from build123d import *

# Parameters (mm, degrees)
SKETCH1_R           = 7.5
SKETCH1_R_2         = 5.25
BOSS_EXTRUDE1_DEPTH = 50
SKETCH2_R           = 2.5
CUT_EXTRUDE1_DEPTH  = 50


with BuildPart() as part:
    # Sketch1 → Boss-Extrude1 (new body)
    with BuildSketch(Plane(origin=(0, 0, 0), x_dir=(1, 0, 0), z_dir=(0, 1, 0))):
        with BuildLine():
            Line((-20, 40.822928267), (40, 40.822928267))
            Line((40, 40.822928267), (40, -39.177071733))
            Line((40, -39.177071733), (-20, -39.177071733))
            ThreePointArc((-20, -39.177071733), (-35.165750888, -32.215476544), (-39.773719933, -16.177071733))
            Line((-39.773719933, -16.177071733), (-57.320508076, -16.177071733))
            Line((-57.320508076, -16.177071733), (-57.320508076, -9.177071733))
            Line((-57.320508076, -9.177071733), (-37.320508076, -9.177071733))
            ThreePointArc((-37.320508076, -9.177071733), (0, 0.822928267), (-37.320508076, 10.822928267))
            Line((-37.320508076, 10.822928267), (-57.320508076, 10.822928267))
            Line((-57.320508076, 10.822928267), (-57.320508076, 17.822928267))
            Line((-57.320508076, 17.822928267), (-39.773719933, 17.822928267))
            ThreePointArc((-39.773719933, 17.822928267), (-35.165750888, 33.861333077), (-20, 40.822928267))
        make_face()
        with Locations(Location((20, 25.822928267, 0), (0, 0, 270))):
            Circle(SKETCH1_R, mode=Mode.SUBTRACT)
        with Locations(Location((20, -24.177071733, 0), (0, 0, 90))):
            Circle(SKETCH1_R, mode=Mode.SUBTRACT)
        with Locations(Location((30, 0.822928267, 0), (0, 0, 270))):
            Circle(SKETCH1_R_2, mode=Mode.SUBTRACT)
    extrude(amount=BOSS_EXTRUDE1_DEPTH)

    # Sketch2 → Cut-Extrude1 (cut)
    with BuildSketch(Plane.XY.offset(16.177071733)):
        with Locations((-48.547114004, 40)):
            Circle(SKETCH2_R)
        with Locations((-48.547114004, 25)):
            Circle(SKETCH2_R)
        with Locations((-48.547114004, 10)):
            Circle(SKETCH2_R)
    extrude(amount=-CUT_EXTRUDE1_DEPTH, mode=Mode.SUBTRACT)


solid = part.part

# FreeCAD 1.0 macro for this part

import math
import FreeCAD as App
import Part
import Sketcher

V = App.Vector

doc = App.newDocument("Part")
params = doc.addObject("Spreadsheet::Sheet", "Params")
for row, (alias, value) in enumerate([
    ("sketch1_diameter", "15 mm"),
    ("sketch1_radius", "20 mm"),
    ("sketch1_diameter2", "10.5 mm"),
    ("sketch1_width", "60 mm"),
    ("sketch1_width2", "20 mm"),
    ("pad1_length", "50 mm"),
    ("sketch2_diameter", "5 mm"),
    ("pocket1_length", "50 mm"),
], start=1):
    params.set(f"A{row}", alias)
    params.set(f"B{row}", "=" + value)
    params.setAlias(f"B{row}", alias)

body = doc.addObject("PartDesign::Body", "Body")

# Sketch on XZ plane
sketch1 = doc.addObject("Sketcher::SketchObject", "Sketch")
body.addObject(sketch1)
sketch1.AttachmentSupport = (doc.XZ_Plane, [""])
sketch1.MapMode = "FlatFace"
sketch1.addGeometry(Part.LineSegment(V(40, -41, 0), V(-20, -41, 0)), False)
sketch1.addGeometry(Part.ArcOfCircle(Part.Circle(V(-20, -21, 0), V(0, 0, 1), 20), math.radians(171), math.radians(270)), False)
sketch1.addGeometry(Part.LineSegment(V(-40, -18, 0), V(-57, -18, 0)), False)
sketch1.addGeometry(Part.LineSegment(V(-57, -18, 0), V(-57, -11, 0)), False)
sketch1.addGeometry(Part.LineSegment(V(-57, -11, 0), V(-37, -11, 0)), False)
sketch1.addGeometry(Part.ArcOfCircle(Part.Circle(V(-20, -1, 0), V(0, 0, 1), 20), math.radians(-150), math.radians(150)), False)
sketch1.addGeometry(Part.LineSegment(V(-37, 9, 0), V(-57, 9, 0)), False)
sketch1.addGeometry(Part.LineSegment(V(-57, 9, 0), V(-57, 16, 0)), False)
sketch1.addGeometry(Part.LineSegment(V(-57, 16, 0), V(-40, 16, 0)), False)
sketch1.addGeometry(Part.ArcOfCircle(Part.Circle(V(-20, 19, 0), V(0, 0, 1), 20), math.radians(90), math.radians(189)), False)
sketch1.addGeometry(Part.LineSegment(V(-20, 39, 0), V(40, 39, 0)), False)
sketch1.addGeometry(Part.LineSegment(V(40, 39, 0), V(40, -41, 0)), False)
sketch1.addGeometry(Part.Circle(V(20, 24, 0), V(0, 0, 1), 8), False)
sketch1.addGeometry(Part.Circle(V(30, -1, 0), V(0, 0, 1), 5), False)
sketch1.addGeometry(Part.Circle(V(20, -26, 0), V(0, 0, 1), 8), False)
sketch1.addConstraint(Sketcher.Constraint("Tangent", 0, 2, 1, 2))
sketch1.addConstraint(Sketcher.Constraint("Coincident", 1, 1, 2, 1))
sketch1.addConstraint(Sketcher.Constraint("Coincident", 2, 2, 3, 1))
sketch1.addConstraint(Sketcher.Constraint("Coincident", 3, 2, 4, 1))
sketch1.addConstraint(Sketcher.Constraint("Coincident", 4, 2, 5, 1))
sketch1.addConstraint(Sketcher.Constraint("Coincident", 5, 2, 6, 1))
sketch1.addConstraint(Sketcher.Constraint("Coincident", 6, 2, 7, 1))
sketch1.addConstraint(Sketcher.Constraint("Coincident", 7, 2, 8, 1))
sketch1.addConstraint(Sketcher.Constraint("Coincident", 8, 2, 9, 2))
sketch1.addConstraint(Sketcher.Constraint("Tangent", 9, 1, 10, 1))
sketch1.addConstraint(Sketcher.Constraint("Coincident", 10, 2, 11, 1))
sketch1.addConstraint(Sketcher.Constraint("Coincident", 11, 2, 0, 1))
sketch1.addConstraint(Sketcher.Constraint("Horizontal", 0))
sketch1.addConstraint(Sketcher.Constraint("Horizontal", 2))
sketch1.addConstraint(Sketcher.Constraint("Vertical", 3))
sketch1.addConstraint(Sketcher.Constraint("Horizontal", 4))
sketch1.addConstraint(Sketcher.Constraint("Horizontal", 6))
sketch1.addConstraint(Sketcher.Constraint("Vertical", 7))
sketch1.addConstraint(Sketcher.Constraint("Horizontal", 8))
sketch1.addConstraint(Sketcher.Constraint("Horizontal", 10))
sketch1.addConstraint(Sketcher.Constraint("Vertical", 11))
sketch1.addConstraint(Sketcher.Constraint("Equal", 1, 5))
sketch1.addConstraint(Sketcher.Constraint("Equal", 5, 9))
sketch1.addConstraint(Sketcher.Constraint("Equal", 12, 14))
sketch1.addConstraint(Sketcher.Constraint("Horizontal", 5, 3, 13, 3))
sketch1.addConstraint(Sketcher.Constraint("Vertical", 1, 3, 5, 3))
sketch1.addConstraint(Sketcher.Constraint("Vertical", 5, 3, 9, 3))
sketch1.addConstraint(Sketcher.Constraint("Vertical", 12, 3, 14, 3))
sketch1.addConstraint(Sketcher.Constraint("Vertical", 4, 2, 5, 2))
sketch1.addConstraint(Sketcher.Constraint("Vertical", 3, 2, 6, 2))
sketch1.addConstraint(Sketcher.Constraint("Vertical", 1, 1, 8, 2))
sketch1.addConstraint(Sketcher.Constraint("Equal", 3, 7))
sketch1.addConstraint(Sketcher.Constraint("Diameter", 12, 15.0))
sketch1.addConstraint(Sketcher.Constraint("Radius", 1, 20.0))
sketch1.addConstraint(Sketcher.Constraint("Diameter", 13, 10.5))
sketch1.addConstraint(Sketcher.Constraint("DistanceX", 0, 2, 0, 1, 60.0))
sketch1.addConstraint(Sketcher.Constraint("DistanceX", 4, 1, 4, 2, 20.0))
sketch1.addConstraint(Sketcher.Constraint("DistanceY", 3, 1, 3, 2, 7.0))
sketch1.addConstraint(Sketcher.Constraint("DistanceY", 11, 2, 11, 1, 80.0))
sketch1.addConstraint(Sketcher.Constraint("DistanceX", 1, 3, -1, 1, 20.0))
sketch1.addConstraint(Sketcher.Constraint("DistanceX", -1, 1, 12, 3, 20.0))
sketch1.addConstraint(Sketcher.Constraint("DistanceX", -1, 1, 13, 3, 30.0))
sketch1.addConstraint(Sketcher.Constraint("DistanceY", 9, 3, 12, 3, 5.0))
sketch1.addConstraint(Sketcher.Constraint("DistanceY", 14, 3, 13, 3, 25.0))
sketch1.addConstraint(Sketcher.Constraint("DistanceY", 1, 3, 1, 1, 3.0))
sketch1.addConstraint(Sketcher.Constraint("DistanceY", 1, 3, -1, 1, 20.822928))
sketch1.setExpression("Constraints[32]", "Params.sketch1_diameter")
sketch1.setExpression("Constraints[33]", "Params.sketch1_radius")
sketch1.setExpression("Constraints[34]", "Params.sketch1_diameter2")
sketch1.setExpression("Constraints[35]", "Params.sketch1_width")
sketch1.setExpression("Constraints[36]", "Params.sketch1_width2")
pad1 = doc.addObject("PartDesign::Pad", "Pad")
body.addObject(pad1)
pad1.Profile = sketch1
pad1.setExpression("Length", "Params.pad1_length")
pad1.Reversed = True

# Sketch on XY plane
sketch2 = doc.addObject("Sketcher::SketchObject", "Sketch001")
body.addObject(sketch2)
sketch2.AttachmentSupport = (doc.XY_Plane, [""])
sketch2.MapMode = "FlatFace"
sketch2.AttachmentOffset = App.Placement(V(0, 0, 16.177072), App.Rotation())
sketch2.addGeometry(Part.Circle(V(-48.5, 40, 0), V(0, 0, 1), 2.5), False)
sketch2.addGeometry(Part.Circle(V(-48.5, 25, 0), V(0, 0, 1), 2.5), False)
sketch2.addGeometry(Part.Circle(V(-48.5, 10, 0), V(0, 0, 1), 2.5), False)
sketch2.addConstraint(Sketcher.Constraint("Equal", 0, 1))
sketch2.addConstraint(Sketcher.Constraint("Equal", 1, 2))
sketch2.addConstraint(Sketcher.Constraint("Vertical", 0, 3, 1, 3))
sketch2.addConstraint(Sketcher.Constraint("Vertical", 1, 3, 2, 3))
sketch2.addConstraint(Sketcher.Constraint("Diameter", 0, 5.0))
sketch2.addConstraint(Sketcher.Constraint("DistanceY", -1, 1, 0, 3, 40.0))
sketch2.addConstraint(Sketcher.Constraint("DistanceY", -1, 1, 1, 3, 25.0))
sketch2.addConstraint(Sketcher.Constraint("DistanceY", -1, 1, 2, 3, 10.0))
sketch2.addConstraint(Sketcher.Constraint("DistanceX", 0, 3, -1, 1, 48.547114))
sketch2.setExpression("Constraints[4]", "Params.sketch2_diameter")
pocket1 = doc.addObject("PartDesign::Pocket", "Pocket")
body.addObject(pocket1)
pocket1.Profile = sketch2
pocket1.setExpression("Length", "Params.pocket1_length")

doc.recompute()
